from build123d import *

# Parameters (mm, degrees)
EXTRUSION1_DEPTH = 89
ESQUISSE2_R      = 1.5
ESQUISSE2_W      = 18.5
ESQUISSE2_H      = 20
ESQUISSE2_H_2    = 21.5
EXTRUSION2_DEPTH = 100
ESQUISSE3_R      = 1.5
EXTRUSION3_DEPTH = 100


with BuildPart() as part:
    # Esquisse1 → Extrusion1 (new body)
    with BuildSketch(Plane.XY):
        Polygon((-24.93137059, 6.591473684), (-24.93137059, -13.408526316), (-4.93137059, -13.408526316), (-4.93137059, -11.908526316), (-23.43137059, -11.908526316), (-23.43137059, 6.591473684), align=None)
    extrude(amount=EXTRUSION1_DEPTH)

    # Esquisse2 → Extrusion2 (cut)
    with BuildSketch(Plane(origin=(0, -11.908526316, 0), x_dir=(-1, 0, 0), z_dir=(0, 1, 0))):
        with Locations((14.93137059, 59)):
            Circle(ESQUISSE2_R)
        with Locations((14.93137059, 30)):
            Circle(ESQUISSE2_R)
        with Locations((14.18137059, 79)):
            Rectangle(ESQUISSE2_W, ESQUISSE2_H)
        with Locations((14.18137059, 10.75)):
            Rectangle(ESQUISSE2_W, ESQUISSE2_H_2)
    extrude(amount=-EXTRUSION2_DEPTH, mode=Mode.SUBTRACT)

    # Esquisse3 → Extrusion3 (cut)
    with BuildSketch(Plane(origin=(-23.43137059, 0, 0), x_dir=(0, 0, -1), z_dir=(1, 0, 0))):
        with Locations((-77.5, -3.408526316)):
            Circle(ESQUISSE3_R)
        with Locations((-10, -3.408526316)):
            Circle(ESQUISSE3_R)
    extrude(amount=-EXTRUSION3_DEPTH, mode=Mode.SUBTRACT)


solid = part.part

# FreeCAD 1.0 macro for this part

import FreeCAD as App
import Part
import Sketcher
from FreeCAD import Vector
Q = App.Units.Quantity

doc = App.newDocument("Part")
body = doc.addObject("PartDesign::Body", "Body")

# Sketch on XY plane
sketch1 = body.newObject("Sketcher::SketchObject", "Sketch")
sketch1.AttachmentSupport = (doc.getObject("XY_Plane"), [""])
sketch1.MapMode = "FlatFace"
sketch1.addGeometry([
    Part.LineSegment(Vector(-24.9, 6.6, 0), Vector(-24.9, -13.4, 0)),  # 0
    Part.LineSegment(Vector(-24.9, -13.4, 0), Vector(-4.9, -13.4, 0)),  # 1
    Part.LineSegment(Vector(-4.9, -13.4, 0), Vector(-4.9, -11.9, 0)),  # 2
    Part.LineSegment(Vector(-4.9, -11.9, 0), Vector(-23.4, -11.9, 0)),  # 3
    Part.LineSegment(Vector(-23.4, -11.9, 0), Vector(-23.4, 6.6, 0)),  # 4
    Part.LineSegment(Vector(-23.4, 6.6, 0), Vector(-24.9, 6.6, 0)),  # 5
], False)
sketch1.addConstraint([
    Sketcher.Constraint("Coincident", 0, 2, 1, 1),
    Sketcher.Constraint("Coincident", 1, 2, 2, 1),
    Sketcher.Constraint("Coincident", 2, 2, 3, 1),
    Sketcher.Constraint("Coincident", 3, 2, 4, 1),
    Sketcher.Constraint("Coincident", 4, 2, 5, 1),
    Sketcher.Constraint("Coincident", 5, 2, 0, 1),
    Sketcher.Constraint("Vertical", 0),
    Sketcher.Constraint("Horizontal", 1),
    Sketcher.Constraint("Vertical", 2),
    Sketcher.Constraint("Horizontal", 3),
    Sketcher.Constraint("Vertical", 4),
    Sketcher.Constraint("Horizontal", 5),
    Sketcher.Constraint("Equal", 1, 0),
    Sketcher.Constraint("Equal", 5, 2),
    Sketcher.Constraint("DistanceX", 1, 1, 1, 2, Q("20 mm")),
    Sketcher.Constraint("DistanceX", 3, 2, 3, 1, Q("18.5 mm")),
    Sketcher.Constraint("DistanceX", 0, 2, -1, 1, Q("24.931371 mm")),
    Sketcher.Constraint("DistanceY", 0, 2, -1, 1, Q("13.408526 mm")),
])
pad1 = body.newObject("PartDesign::Pad", "Pad")
pad1.Profile = sketch1
pad1.Length = 89

# Sketch on XZ plane
sketch2 = body.newObject("Sketcher::SketchObject", "Sketch001")
sketch2.AttachmentSupport = (doc.getObject("XZ_Plane"), [""])
sketch2.MapMode = "FlatFace"
sketch2.AttachmentOffset = App.Placement(Vector(0, 0, 11.908526), App.Rotation())
sketch2.addGeometry([
    Part.Circle(Vector(-14.9, 59, 0), Vector(0, 0, 1), 1.5),  # 0
    Part.Circle(Vector(-14.9, 30, 0), Vector(0, 0, 1), 1.5),  # 1
    Part.LineSegment(Vector(-4.9, 89, 0), Vector(-4.9, 69, 0)),  # 2
    Part.LineSegment(Vector(-4.9, 69, 0), Vector(-23.4, 69, 0)),  # 3
    Part.LineSegment(Vector(-23.4, 69, 0), Vector(-23.4, 89, 0)),  # 4
    Part.LineSegment(Vector(-23.4, 89, 0), Vector(-4.9, 89, 0)),  # 5
    Part.LineSegment(Vector(-4.9, 21.5, 0), Vector(-4.9, 0, 0)),  # 6
    Part.LineSegment(Vector(-4.9, 0, 0), Vector(-23.4, 0, 0)),  # 7
    Part.LineSegment(Vector(-23.4, 0, 0), Vector(-23.4, 21.5, 0)),  # 8
    Part.LineSegment(Vector(-23.4, 21.5, 0), Vector(-4.9, 21.5, 0)),  # 9
], False)
sketch2.addConstraint([
    Sketcher.Constraint("Coincident", 2, 2, 3, 1),
    Sketcher.Constraint("Coincident", 3, 2, 4, 1),
    Sketcher.Constraint("Coincident", 4, 2, 5, 1),
    Sketcher.Constraint("Coincident", 5, 2, 2, 1),
    Sketcher.Constraint("Coincident", 6, 2, 7, 1),
    Sketcher.Constraint("Coincident", 7, 2, 8, 1),
    Sketcher.Constraint("Coincident", 8, 2, 9, 1),
    Sketcher.Constraint("Coincident", 9, 2, 6, 1),
    Sketcher.Constraint("Vertical", 2),
    Sketcher.Constraint("Horizontal", 3),
    Sketcher.Constraint("Vertical", 4),
    Sketcher.Constraint("Horizontal", 5),
    Sketcher.Constraint("Vertical", 6),
    Sketcher.Constraint("Horizontal", 7),
    Sketcher.Constraint("Vertical", 8),
    Sketcher.Constraint("Horizontal", 9),
    Sketcher.Constraint("Equal", 0, 1),
    Sketcher.Constraint("PointOnObject", 6, 2, -1),
    Sketcher.Constraint("Vertical", 0, 3, 1, 3),
    Sketcher.Constraint("Vertical", 5, 2, 6, 2),
    Sketcher.Constraint("Vertical", 4, 2, 7, 2),
    Sketcher.Constraint("Diameter", 0, Q("3 mm")),
    Sketcher.Constraint("DistanceY", 2, 2, 2, 1, Q("20 mm")),
    Sketcher.Constraint("DistanceX", 3, 2, 3, 1, Q("18.5 mm")),
    Sketcher.Constraint("DistanceY", 6, 2, 6, 1, Q("21.5 mm")),
    Sketcher.Constraint("DistanceY", -1, 1, 0, 3, Q("59 mm")),
    Sketcher.Constraint("DistanceY", -1, 1, 1, 3, Q("30 mm")),
    Sketcher.Constraint("DistanceY", -1, 1, 2, 2, Q("69 mm")),
    Sketcher.Constraint("DistanceX", 0, 3, 2, 2, Q("10 mm")),
    Sketcher.Constraint("DistanceX", 0, 3, -1, 1, Q("14.931371 mm")),
])
pocket1 = body.newObject("PartDesign::Pocket", "Pocket")
pocket1.Profile = sketch2
pocket1.Length = 100
pocket1.Reversed = True

# Sketch on YZ plane
sketch3 = body.newObject("Sketcher::SketchObject", "Sketch002")
sketch3.AttachmentSupport = (doc.getObject("YZ_Plane"), [""])
sketch3.MapMode = "FlatFace"
sketch3.AttachmentOffset = App.Placement(Vector(0, 0, -23.431371), App.Rotation())
sketch3.addGeometry([
    Part.Circle(Vector(-3.4, 77.5, 0), Vector(0, 0, 1), 1.5),
    Part.Circle(Vector(-3.4, 10, 0), Vector(0, 0, 1), 1.5),
], False)
sketch3.addConstraint([
    Sketcher.Constraint("Equal", 0, 1),
    Sketcher.Constraint("Vertical", 0, 3, 1, 3),
    Sketcher.Constraint("Diameter", 0, Q("3 mm")),
    Sketcher.Constraint("DistanceY", -1, 1, 1, 3, Q("10 mm")),
    Sketcher.Constraint("DistanceY", -1, 1, 0, 3, Q("77.5 mm")),
    Sketcher.Constraint("DistanceX", 0, 3, -1, 1, Q("3.408526 mm")),
])
pocket2 = body.newObject("PartDesign::Pocket", "Pocket001")
pocket2.Profile = sketch3
pocket2.Length = 100

doc.recompute()
